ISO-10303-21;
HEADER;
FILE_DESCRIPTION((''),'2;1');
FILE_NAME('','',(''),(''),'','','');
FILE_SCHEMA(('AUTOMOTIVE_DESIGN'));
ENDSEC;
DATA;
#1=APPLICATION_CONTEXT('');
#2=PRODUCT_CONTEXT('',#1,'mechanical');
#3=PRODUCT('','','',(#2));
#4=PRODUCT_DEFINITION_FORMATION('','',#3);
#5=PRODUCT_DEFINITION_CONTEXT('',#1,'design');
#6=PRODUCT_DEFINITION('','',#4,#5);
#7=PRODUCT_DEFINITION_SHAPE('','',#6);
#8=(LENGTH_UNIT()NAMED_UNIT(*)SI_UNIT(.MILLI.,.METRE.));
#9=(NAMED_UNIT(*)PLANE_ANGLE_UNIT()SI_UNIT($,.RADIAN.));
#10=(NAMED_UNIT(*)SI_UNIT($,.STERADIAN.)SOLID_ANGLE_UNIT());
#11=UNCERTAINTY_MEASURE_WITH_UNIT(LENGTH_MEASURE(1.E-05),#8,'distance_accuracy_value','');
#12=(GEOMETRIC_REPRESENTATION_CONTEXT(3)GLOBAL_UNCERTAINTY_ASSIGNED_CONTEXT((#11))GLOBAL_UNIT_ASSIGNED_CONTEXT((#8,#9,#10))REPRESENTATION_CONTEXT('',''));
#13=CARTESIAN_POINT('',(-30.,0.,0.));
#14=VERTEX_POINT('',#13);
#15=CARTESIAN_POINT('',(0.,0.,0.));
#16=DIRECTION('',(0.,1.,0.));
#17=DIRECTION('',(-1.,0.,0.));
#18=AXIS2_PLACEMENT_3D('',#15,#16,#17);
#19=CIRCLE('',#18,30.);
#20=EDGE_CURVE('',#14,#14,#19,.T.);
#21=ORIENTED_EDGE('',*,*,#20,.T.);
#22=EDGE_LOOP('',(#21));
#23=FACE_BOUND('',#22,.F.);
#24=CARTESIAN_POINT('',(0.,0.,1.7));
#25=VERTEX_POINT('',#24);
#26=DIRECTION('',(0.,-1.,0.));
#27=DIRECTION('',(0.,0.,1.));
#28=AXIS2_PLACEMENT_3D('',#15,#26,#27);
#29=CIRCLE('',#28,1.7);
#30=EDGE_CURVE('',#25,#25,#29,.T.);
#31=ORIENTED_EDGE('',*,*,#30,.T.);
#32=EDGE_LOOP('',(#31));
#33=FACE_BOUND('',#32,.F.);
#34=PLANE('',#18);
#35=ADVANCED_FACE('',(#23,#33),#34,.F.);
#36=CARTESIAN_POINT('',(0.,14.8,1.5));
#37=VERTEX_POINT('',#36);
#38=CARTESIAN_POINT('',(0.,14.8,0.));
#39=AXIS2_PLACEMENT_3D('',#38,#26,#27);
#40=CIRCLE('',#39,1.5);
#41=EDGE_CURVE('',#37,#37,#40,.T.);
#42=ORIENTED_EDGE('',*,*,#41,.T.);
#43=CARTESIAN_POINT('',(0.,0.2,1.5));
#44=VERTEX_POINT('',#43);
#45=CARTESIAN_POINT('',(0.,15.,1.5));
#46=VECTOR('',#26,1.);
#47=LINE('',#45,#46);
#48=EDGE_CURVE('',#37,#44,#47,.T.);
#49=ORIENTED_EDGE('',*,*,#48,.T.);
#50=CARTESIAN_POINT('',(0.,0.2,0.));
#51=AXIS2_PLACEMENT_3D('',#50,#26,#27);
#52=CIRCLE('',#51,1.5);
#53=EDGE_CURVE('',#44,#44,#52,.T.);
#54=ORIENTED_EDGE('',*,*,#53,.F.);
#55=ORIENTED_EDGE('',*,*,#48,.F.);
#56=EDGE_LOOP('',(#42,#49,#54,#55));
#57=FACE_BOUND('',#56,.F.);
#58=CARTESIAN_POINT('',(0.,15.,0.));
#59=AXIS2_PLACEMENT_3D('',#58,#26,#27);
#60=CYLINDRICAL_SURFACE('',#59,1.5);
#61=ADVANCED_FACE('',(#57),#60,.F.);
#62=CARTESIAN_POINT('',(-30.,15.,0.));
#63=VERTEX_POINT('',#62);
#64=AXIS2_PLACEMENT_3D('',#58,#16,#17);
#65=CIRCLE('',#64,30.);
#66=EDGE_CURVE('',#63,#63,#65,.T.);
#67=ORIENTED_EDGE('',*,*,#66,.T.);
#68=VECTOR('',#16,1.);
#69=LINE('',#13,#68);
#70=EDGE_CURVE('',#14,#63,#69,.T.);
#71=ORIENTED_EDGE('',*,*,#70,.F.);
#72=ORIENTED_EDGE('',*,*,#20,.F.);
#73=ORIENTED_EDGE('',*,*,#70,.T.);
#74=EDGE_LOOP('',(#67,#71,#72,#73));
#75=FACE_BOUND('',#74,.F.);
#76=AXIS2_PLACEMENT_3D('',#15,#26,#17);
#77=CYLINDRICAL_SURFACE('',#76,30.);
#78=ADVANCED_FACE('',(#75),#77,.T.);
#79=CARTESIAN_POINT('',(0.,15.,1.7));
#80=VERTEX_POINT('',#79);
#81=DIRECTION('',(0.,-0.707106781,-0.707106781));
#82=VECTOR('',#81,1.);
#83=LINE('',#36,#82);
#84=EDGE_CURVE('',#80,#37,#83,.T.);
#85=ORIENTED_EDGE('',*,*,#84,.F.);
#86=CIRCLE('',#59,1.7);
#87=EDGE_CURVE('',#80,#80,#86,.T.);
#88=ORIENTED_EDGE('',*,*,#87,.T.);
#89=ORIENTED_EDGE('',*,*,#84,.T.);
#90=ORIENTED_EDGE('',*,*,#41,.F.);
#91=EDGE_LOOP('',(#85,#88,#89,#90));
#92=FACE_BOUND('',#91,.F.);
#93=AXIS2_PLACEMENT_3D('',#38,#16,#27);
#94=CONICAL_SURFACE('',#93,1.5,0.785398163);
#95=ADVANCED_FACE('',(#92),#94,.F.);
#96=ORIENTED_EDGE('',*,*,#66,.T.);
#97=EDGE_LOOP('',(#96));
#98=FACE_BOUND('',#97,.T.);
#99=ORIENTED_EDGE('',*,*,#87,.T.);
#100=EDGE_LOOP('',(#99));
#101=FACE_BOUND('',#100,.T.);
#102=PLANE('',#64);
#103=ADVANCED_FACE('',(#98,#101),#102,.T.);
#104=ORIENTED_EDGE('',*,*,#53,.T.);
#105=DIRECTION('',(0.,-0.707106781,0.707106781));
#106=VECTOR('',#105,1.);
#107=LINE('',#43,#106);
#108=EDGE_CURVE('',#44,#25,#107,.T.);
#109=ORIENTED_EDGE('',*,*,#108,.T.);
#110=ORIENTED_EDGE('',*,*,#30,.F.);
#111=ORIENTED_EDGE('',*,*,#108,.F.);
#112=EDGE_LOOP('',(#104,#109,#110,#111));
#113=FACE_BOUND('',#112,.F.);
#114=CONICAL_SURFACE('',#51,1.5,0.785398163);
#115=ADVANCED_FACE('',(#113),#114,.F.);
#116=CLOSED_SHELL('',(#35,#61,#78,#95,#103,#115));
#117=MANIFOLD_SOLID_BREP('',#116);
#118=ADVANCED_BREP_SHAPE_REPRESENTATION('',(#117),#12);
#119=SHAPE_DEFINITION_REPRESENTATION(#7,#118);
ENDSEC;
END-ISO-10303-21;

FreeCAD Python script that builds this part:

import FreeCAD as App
import Part
import Sketcher

V = App.Vector


def edges_at(feature, points):
    """Names of the edges that pass closest to the given points."""
    edges = feature.Shape.Edges
    near = lambda p: min(range(len(edges)), key=lambda i: edges[i].distToShape(Part.Vertex(*p))[0])
    return sorted({f"Edge{near(p) + 1}" for p in points})

doc = App.newDocument("Part")
body = doc.addObject("PartDesign::Body", "Body")

# Sketch on XZ plane
sketch1 = doc.addObject("Sketcher::SketchObject", "Sketch")
body.addObject(sketch1)
sketch1.AttachmentSupport = (doc.XZ_Plane, [""])
sketch1.MapMode = "FlatFace"
sketch1.addGeometry(Part.Circle(V(0, 0, 0), V(0, 0, 1), 30), False)
sketch1.addConstraint([
    Sketcher.Constraint("Coincident", 0, 3, -1, 1),
    Sketcher.Constraint("Diameter", 0, 60.0),
])
pad1 = doc.addObject("PartDesign::Pad", "Pad")
body.addObject(pad1)
pad1.Profile = sketch1
pad1.Length = 15
pad1.Reversed = True

# Sketch on XZ plane
sketch2 = doc.addObject("Sketcher::SketchObject", "Sketch001")
body.addObject(sketch2)
sketch2.AttachmentSupport = (doc.XZ_Plane, [""])
sketch2.MapMode = "FlatFace"
sketch2.AttachmentOffset = App.Placement(V(0, 0, -15), App.Rotation())
sketch2.addGeometry(Part.Circle(V(0, 0, 0), V(0, 0, 1), 1.5), False)
sketch2.addConstraint([
    Sketcher.Constraint("Coincident", 0, 3, -1, 1),
    Sketcher.Constraint("Diameter", 0, 3.0),
])
doc.recompute()
hole = doc.addObject("PartDesign::Hole", "Hole")
body.addObject(hole)
hole.Profile = sketch2
hole.ThreadType = "None"
hole.Diameter = 3
hole.DepthType = "Dimension"
hole.Depth = 15
hole.DrillPoint = "Angled"
hole.DrillPointAngle = 118
hole.Reversed = True
doc.recompute()

chamfer = doc.addObject("PartDesign::Chamfer", "Chamfer")
body.addObject(chamfer)
chamfer.Base = (hole, edges_at(hole, [(0, 15, -1.5)]))
chamfer.Size = 0.2
doc.recompute()

chamfer2 = doc.addObject("PartDesign::Chamfer", "Chamfer001")
body.addObject(chamfer2)
chamfer2.Base = (chamfer, edges_at(chamfer, [(0, 0, -1.5)]))
chamfer2.Size = 0.2

doc.recompute()
